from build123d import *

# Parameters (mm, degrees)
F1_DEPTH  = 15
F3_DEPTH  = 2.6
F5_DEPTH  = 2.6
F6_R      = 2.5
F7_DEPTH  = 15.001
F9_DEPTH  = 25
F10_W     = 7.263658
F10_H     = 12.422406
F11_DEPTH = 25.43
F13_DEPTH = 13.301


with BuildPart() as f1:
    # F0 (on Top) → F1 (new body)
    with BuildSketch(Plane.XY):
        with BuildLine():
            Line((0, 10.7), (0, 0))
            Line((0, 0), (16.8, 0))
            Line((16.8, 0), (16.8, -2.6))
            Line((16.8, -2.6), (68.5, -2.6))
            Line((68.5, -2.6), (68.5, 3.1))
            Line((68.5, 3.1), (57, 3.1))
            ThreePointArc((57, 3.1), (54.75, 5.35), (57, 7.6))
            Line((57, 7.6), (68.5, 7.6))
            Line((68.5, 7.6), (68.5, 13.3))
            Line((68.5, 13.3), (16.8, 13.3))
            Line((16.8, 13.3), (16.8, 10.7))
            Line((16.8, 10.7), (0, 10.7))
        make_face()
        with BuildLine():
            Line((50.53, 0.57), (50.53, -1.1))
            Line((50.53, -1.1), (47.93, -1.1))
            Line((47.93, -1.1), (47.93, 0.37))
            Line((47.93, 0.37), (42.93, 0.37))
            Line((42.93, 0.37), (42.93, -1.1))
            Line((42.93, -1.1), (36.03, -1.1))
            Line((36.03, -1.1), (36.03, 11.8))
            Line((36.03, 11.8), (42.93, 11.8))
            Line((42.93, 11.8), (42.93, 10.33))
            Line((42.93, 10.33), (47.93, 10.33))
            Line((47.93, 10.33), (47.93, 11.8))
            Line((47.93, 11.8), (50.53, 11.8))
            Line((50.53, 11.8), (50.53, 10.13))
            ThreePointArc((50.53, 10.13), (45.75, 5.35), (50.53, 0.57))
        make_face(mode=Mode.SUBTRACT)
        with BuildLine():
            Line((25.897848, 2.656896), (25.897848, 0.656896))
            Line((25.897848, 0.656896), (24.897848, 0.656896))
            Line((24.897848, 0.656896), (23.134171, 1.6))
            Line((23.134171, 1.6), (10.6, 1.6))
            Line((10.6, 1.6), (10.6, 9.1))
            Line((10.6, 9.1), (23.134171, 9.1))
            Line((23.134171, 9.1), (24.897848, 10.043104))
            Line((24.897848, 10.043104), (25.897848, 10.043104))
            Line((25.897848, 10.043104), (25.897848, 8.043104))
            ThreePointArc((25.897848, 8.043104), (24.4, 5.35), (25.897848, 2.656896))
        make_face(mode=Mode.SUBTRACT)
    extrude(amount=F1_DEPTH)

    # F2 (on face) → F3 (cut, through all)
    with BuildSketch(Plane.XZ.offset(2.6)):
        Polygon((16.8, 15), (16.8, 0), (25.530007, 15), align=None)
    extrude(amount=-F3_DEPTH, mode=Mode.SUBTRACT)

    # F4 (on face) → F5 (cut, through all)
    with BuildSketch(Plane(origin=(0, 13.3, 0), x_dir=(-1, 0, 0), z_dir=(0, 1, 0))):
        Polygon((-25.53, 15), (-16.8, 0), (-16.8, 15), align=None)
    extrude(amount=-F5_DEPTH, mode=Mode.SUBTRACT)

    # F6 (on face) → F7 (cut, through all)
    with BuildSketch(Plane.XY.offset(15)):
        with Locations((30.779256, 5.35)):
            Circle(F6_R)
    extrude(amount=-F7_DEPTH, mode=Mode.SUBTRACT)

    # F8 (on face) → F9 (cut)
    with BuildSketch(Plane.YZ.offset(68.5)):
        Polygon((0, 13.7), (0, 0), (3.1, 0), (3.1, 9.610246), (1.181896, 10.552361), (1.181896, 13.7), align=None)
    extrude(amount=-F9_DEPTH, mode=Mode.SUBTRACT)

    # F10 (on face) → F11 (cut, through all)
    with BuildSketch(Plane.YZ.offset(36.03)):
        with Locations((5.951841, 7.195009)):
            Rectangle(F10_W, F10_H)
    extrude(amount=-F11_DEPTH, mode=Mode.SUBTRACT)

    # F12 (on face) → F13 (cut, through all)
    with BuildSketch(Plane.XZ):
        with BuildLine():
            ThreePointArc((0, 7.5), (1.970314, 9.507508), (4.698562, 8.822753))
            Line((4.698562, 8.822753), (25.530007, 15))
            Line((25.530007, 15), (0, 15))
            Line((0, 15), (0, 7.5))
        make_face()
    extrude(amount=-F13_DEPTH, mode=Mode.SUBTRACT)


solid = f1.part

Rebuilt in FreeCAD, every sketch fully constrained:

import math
import FreeCAD as App
import Part
import Sketcher


def add_polygon(sketch, points):
    """Adds a closed chain of lines whose ends are joined by coincident constraints."""
    first, n = sketch.GeometryCount, len(points)
    for a, b in zip(points, points[1:] + points[:1]):
        sketch.addGeometry(Part.LineSegment(App.Vector(*a, 0), App.Vector(*b, 0)), False)
    for i in range(n):
        sketch.addConstraint(Sketcher.Constraint("Coincident", first + i, 2, first + (i + 1) % n, 1))

doc = App.newDocument("Part")
body = doc.addObject("PartDesign::Body", "Body")

sketch1 = body.newObject("Sketcher::SketchObject", "Sketch")
sketch1.AttachmentSupport = (doc.getObject("XY_Plane"), [""])
sketch1.MapMode = "FlatFace"
sketch1.addGeometry([
    Part.LineSegment(App.Vector(0, 10.7, 0), App.Vector(0, 0, 0)),
    Part.LineSegment(App.Vector(0, 0, 0), App.Vector(16.8, 0, 0)),
    Part.LineSegment(App.Vector(16.8, 0, 0), App.Vector(16.8, -2.6, 0)),
    Part.LineSegment(App.Vector(16.8, -2.6, 0), App.Vector(68.5, -2.6, 0)),
    Part.LineSegment(App.Vector(68.5, -2.6, 0), App.Vector(68.5, 3.1, 0)),
    Part.LineSegment(App.Vector(68.5, 3.1, 0), App.Vector(57, 3.1, 0)),
    Part.ArcOfCircle(Part.Circle(App.Vector(57, 5.35, 0), App.Vector(0, 0, 1), 2.25), math.radians(90), math.radians(270)),
    Part.LineSegment(App.Vector(57, 7.6, 0), App.Vector(68.5, 7.6, 0)),
    Part.LineSegment(App.Vector(68.5, 7.6, 0), App.Vector(68.5, 13.3, 0)),
    Part.LineSegment(App.Vector(68.5, 13.3, 0), App.Vector(16.8, 13.3, 0)),
    Part.LineSegment(App.Vector(16.8, 13.3, 0), App.Vector(16.8, 10.7, 0)),
    Part.LineSegment(App.Vector(16.8, 10.7, 0), App.Vector(0, 10.7, 0)),
    Part.ArcOfCircle(Part.Circle(App.Vector(27.57, 5.35, 0), App.Vector(0, 0, 1), 3.17), math.radians(121.836211), math.radians(238.163789)),
    Part.LineSegment(App.Vector(25.897848, 2.656896, 0), App.Vector(25.897848, 0.656896, 0)),
    Part.LineSegment(App.Vector(25.897848, 0.656896, 0), App.Vector(24.897848, 0.656896, 0)),
    Part.LineSegment(App.Vector(24.897848, 0.656896, 0), App.Vector(23.134171, 1.6, 0)),
    Part.LineSegment(App.Vector(23.134171, 1.6, 0), App.Vector(10.6, 1.6, 0)),
    Part.LineSegment(App.Vector(10.6, 1.6, 0), App.Vector(10.6, 9.1, 0)),
    Part.LineSegment(App.Vector(10.6, 9.1, 0), App.Vector(23.134171, 9.1, 0)),
    Part.LineSegment(App.Vector(23.134171, 9.1, 0), App.Vector(24.897848, 10.043104, 0)),
    Part.LineSegment(App.Vector(24.897848, 10.043104, 0), App.Vector(25.897848, 10.043104, 0)),
    Part.LineSegment(App.Vector(25.897848, 10.043104, 0), App.Vector(25.897848, 8.043104, 0)),
    Part.ArcOfCircle(Part.Circle(App.Vector(50.53, 5.35, 0), App.Vector(0, 0, 1), 4.78), math.radians(90), math.radians(270)),
    Part.LineSegment(App.Vector(50.53, 0.57, 0), App.Vector(50.53, -1.1, 0)),
    Part.LineSegment(App.Vector(50.53, -1.1, 0), App.Vector(47.93, -1.1, 0)),
    Part.LineSegment(App.Vector(47.93, -1.1, 0), App.Vector(47.93, 0.37, 0)),
    Part.LineSegment(App.Vector(47.93, 0.37, 0), App.Vector(42.93, 0.37, 0)),
    Part.LineSegment(App.Vector(42.93, 0.37, 0), App.Vector(42.93, -1.1, 0)),
    Part.LineSegment(App.Vector(42.93, -1.1, 0), App.Vector(36.03, -1.1, 0)),
    Part.LineSegment(App.Vector(36.03, -1.1, 0), App.Vector(36.03, 11.8, 0)),
    Part.LineSegment(App.Vector(36.03, 11.8, 0), App.Vector(42.93, 11.8, 0)),
    Part.LineSegment(App.Vector(42.93, 11.8, 0), App.Vector(42.93, 10.33, 0)),
    Part.LineSegment(App.Vector(42.93, 10.33, 0), App.Vector(47.93, 10.33, 0)),
    Part.LineSegment(App.Vector(47.93, 10.33, 0), App.Vector(47.93, 11.8, 0)),
    Part.LineSegment(App.Vector(47.93, 11.8, 0), App.Vector(50.53, 11.8, 0)),
    Part.LineSegment(App.Vector(50.53, 11.8, 0), App.Vector(50.53, 10.13, 0)),
], False)
sketch1.addConstraint([
    Sketcher.Constraint("Coincident", 0, 2, 1, 1),
    Sketcher.Constraint("Coincident", 1, 2, 2, 1),
    Sketcher.Constraint("Coincident", 2, 2, 3, 1),
    Sketcher.Constraint("Coincident", 3, 2, 4, 1),
    Sketcher.Constraint("Coincident", 4, 2, 5, 1),
    Sketcher.Constraint("Tangent", 5, 2, 6, 2),
    Sketcher.Constraint("Tangent", 6, 1, 7, 1),
    Sketcher.Constraint("Coincident", 7, 2, 8, 1),
    Sketcher.Constraint("Coincident", 8, 2, 9, 1),
    Sketcher.Constraint("Coincident", 9, 2, 10, 1),
    Sketcher.Constraint("Coincident", 10, 2, 11, 1),
    Sketcher.Constraint("Coincident", 11, 2, 0, 1),
    Sketcher.Constraint("Coincident", 12, 2, 13, 1),
    Sketcher.Constraint("Coincident", 13, 2, 14, 1),
    Sketcher.Constraint("Coincident", 14, 2, 15, 1),
    Sketcher.Constraint("Coincident", 15, 2, 16, 1),
    Sketcher.Constraint("Coincident", 16, 2, 17, 1),
    Sketcher.Constraint("Coincident", 17, 2, 18, 1),
    Sketcher.Constraint("Coincident", 18, 2, 19, 1),
    Sketcher.Constraint("Coincident", 19, 2, 20, 1),
    Sketcher.Constraint("Coincident", 20, 2, 21, 1),
    Sketcher.Constraint("Coincident", 21, 2, 12, 1),
    Sketcher.Constraint("Coincident", 22, 2, 23, 1),
    Sketcher.Constraint("Coincident", 23, 2, 24, 1),
    Sketcher.Constraint("Coincident", 24, 2, 25, 1),
    Sketcher.Constraint("Coincident", 25, 2, 26, 1),
    Sketcher.Constraint("Coincident", 26, 2, 27, 1),
    Sketcher.Constraint("Coincident", 27, 2, 28, 1),
    Sketcher.Constraint("Coincident", 28, 2, 29, 1),
    Sketcher.Constraint("Coincident", 29, 2, 30, 1),
    Sketcher.Constraint("Coincident", 30, 2, 31, 1),
    Sketcher.Constraint("Coincident", 31, 2, 32, 1),
    Sketcher.Constraint("Coincident", 32, 2, 33, 1),
    Sketcher.Constraint("Coincident", 33, 2, 34, 1),
    Sketcher.Constraint("Coincident", 34, 2, 35, 1),
    Sketcher.Constraint("Coincident", 35, 2, 22, 1),
    Sketcher.Constraint("Vertical", 0),
    Sketcher.Constraint("Horizontal", 1),
    Sketcher.Constraint("Vertical", 2),
    Sketcher.Constraint("Horizontal", 3),
    Sketcher.Constraint("Vertical", 4),
    Sketcher.Constraint("Horizontal", 5),
    Sketcher.Constraint("Horizontal", 7),
    Sketcher.Constraint("Vertical", 8),
    Sketcher.Constraint("Horizontal", 9),
    Sketcher.Constraint("Vertical", 10),
    Sketcher.Constraint("Horizontal", 11),
    Sketcher.Constraint("Vertical", 13),
    Sketcher.Constraint("Horizontal", 14),
    Sketcher.Constraint("Horizontal", 16),
    Sketcher.Constraint("Vertical", 17),
    Sketcher.Constraint("Horizontal", 18),
    Sketcher.Constraint("Horizontal", 20),
    Sketcher.Constraint("Vertical", 21),
    Sketcher.Constraint("Vertical", 23),
    Sketcher.Constraint("Horizontal", 24),
    Sketcher.Constraint("Vertical", 25),
    Sketcher.Constraint("Horizontal", 26),
    Sketcher.Constraint("Vertical", 27),
    Sketcher.Constraint("Horizontal", 28),
    Sketcher.Constraint("Vertical", 29),
    Sketcher.Constraint("Horizontal", 30),
    Sketcher.Constraint("Vertical", 31),
    Sketcher.Constraint("Horizontal", 32),
    Sketcher.Constraint("Vertical", 33),
    Sketcher.Constraint("Horizontal", 34),
    Sketcher.Constraint("Vertical", 35),
    Sketcher.Constraint("Coincident", 0, 2, -1, 1),
    Sketcher.Constraint("Horizontal", 6, 3, 12, 3),
    Sketcher.Constraint("Horizontal", 12, 3, 22, 3),
    Sketcher.Constraint("Horizontal", 24, 2, 27, 2),
    Sketcher.Constraint("Horizontal", 30, 2, 33, 2),
    Sketcher.Constraint("Vertical", 4, 2, 7, 2),
    Sketcher.Constraint("Vertical", 2, 2, 9, 2),
    Sketcher.Constraint("Vertical", 15, 2, 18, 2),
    Sketcher.Constraint("Vertical", 14, 2, 19, 2),
    Sketcher.Constraint("Vertical", 13, 2, 20, 2),
    Sketcher.Constraint("Vertical", 27, 2, 30, 2),
    Sketcher.Constraint("Vertical", 25, 2, 32, 2),
    Sketcher.Constraint("Vertical", 23, 2, 34, 2),
    Sketcher.Constraint("Equal", 34, 2),
    Sketcher.Constraint("Equal", 4, 8),
    Sketcher.Constraint("Equal", 2, 10),
    Sketcher.Constraint("Equal", 13, 21),
    Sketcher.Constraint("Equal", 27, 31),
    Sketcher.Constraint("Equal", 23, 35),
    Sketcher.Constraint("Equal", 15, 19),
    Sketcher.Constraint("DistanceX", 14, 2, 14, 1, 1.0),
    Sketcher.Constraint("DistanceX", 26, 2, 26, 1, 5.0),
    Sketcher.Constraint("DistanceY", 13, 2, 13, 1, 2.0),
    Sketcher.Constraint("Radius", 6, 2.25),
    Sketcher.Constraint("Radius", 12, 3.17),
    Sketcher.Constraint("Radius", 22, 4.78),
    Sketcher.Constraint("Distance", 15, 2.0),
    Sketcher.Constraint("DistanceX", 1, 1, 1, 2, 16.8),
    Sketcher.Constraint("DistanceX", 3, 1, 3, 2, 51.7),
    Sketcher.Constraint("DistanceX", 5, 2, 5, 1, 11.5),
    Sketcher.Constraint("DistanceX", 24, 2, 24, 1, 2.6),
    Sketcher.Constraint("DistanceX", 28, 2, 28, 1, 6.9),
    Sketcher.Constraint("DistanceY", 0, 2, 0, 1, 10.7),
    Sketcher.Constraint("DistanceY", 17, 1, 17, 2, 7.5),
    Sketcher.Constraint("DistanceY", 29, 1, 29, 2, 12.9),
    Sketcher.Constraint("DistanceY", 25, 1, 25, 2, 1.47),
    Sketcher.Constraint("DistanceX", -1, 1, 16, 2, 10.6),
    Sketcher.Constraint("DistanceX", 24, 2, 22, 3, 2.6),
    Sketcher.Constraint("DistanceX", -1, 1, 12, 3, 27.57),
    Sketcher.Constraint("DistanceX", -1, 1, 22, 3, 50.53),
    Sketcher.Constraint("DistanceX", 16, 2, 16, 1, 12.534171),
])
pad1 = body.newObject("PartDesign::Pad", "Pad")
pad1.Profile = sketch1
pad1.Length = 15

sketch2 = body.newObject("Sketcher::SketchObject", "Sketch001")
sketch2.AttachmentSupport = (doc.getObject("XZ_Plane"), [""])
sketch2.MapMode = "FlatFace"
sketch2.AttachmentOffset = App.Placement(App.Vector(0, 0, 2.6), App.Rotation())
add_polygon(sketch2, [(16.8, 15), (16.8, 0), (25.530007, 15)])
sketch2.addConstraint([
    Sketcher.Constraint("Vertical", 0),
    Sketcher.Constraint("Horizontal", 2),
    Sketcher.Constraint("PointOnObject", 0, 2, -1),
    Sketcher.Constraint("DistanceY", 0, 2, 0, 1, 15.0),
    Sketcher.Constraint("DistanceX", -1, 1, 0, 2, 16.8),
    Sketcher.Constraint("Distance", 1, 17.35549),
])
pocket1 = body.newObject("PartDesign::Pocket", "Pocket")
pocket1.Profile = sketch2
pocket1.Length = 2.6

sketch3 = body.newObject("Sketcher::SketchObject", "Sketch002")
sketch3.AttachmentSupport = (doc.getObject("XZ_Plane"), [""])
sketch3.MapMode = "FlatFace"
sketch3.AttachmentOffset = App.Placement(App.Vector(0, 0, -13.3), App.Rotation())
add_polygon(sketch3, [(25.53, 15), (16.8, 0), (16.8, 15)])
sketch3.addConstraint([
    Sketcher.Constraint("Vertical", 1),
    Sketcher.Constraint("Horizontal", 2),
    Sketcher.Constraint("PointOnObject", 0, 2, -1),
    Sketcher.Constraint("DistanceY", 1, 1, 1, 2, 15.0),
    Sketcher.Constraint("DistanceX", 2, 1, 2, 2, 8.73),
    Sketcher.Constraint("DistanceX", -1, 1, 0, 2, 16.8),
])
pocket2 = body.newObject("PartDesign::Pocket", "Pocket001")
pocket2.Profile = sketch3
pocket2.Length = 2.6
pocket2.Reversed = True

sketch4 = body.newObject("Sketcher::SketchObject", "Sketch003")
sketch4.AttachmentSupport = (doc.getObject("XY_Plane"), [""])
sketch4.MapMode = "FlatFace"
sketch4.AttachmentOffset = App.Placement(App.Vector(0, 0, 15), App.Rotation())
sketch4.addGeometry(Part.Circle(App.Vector(30.779256, 5.35, 0), App.Vector(0, 0, 1), 2.5), False)
sketch4.addConstraint([
    Sketcher.Constraint("Diameter", 0, 5.0),
    Sketcher.Constraint("DistanceY", -1, 1, 0, 3, 5.35),
    Sketcher.Constraint("DistanceX", -1, 1, 0, 3, 30.779256),
])
pocket3 = body.newObject("PartDesign::Pocket", "Pocket002")
pocket3.Profile = sketch4
pocket3.Type = "ThroughAll"

sketch5 = body.newObject("Sketcher::SketchObject", "Sketch004")
sketch5.AttachmentSupport = (doc.getObject("YZ_Plane"), [""])
sketch5.MapMode = "FlatFace"
sketch5.AttachmentOffset = App.Placement(App.Vector(0, 0, 68.5), App.Rotation())
add_polygon(sketch5, [(0, 13.7), (0, 0), (3.1, 0), (3.1, 9.610246), (1.181896, 10.552361), (1.181896, 13.7)])
sketch5.addConstraint([
    Sketcher.Constraint("Vertical", 0),
    Sketcher.Constraint("Horizontal", 1),
    Sketcher.Constraint("Vertical", 2),
    Sketcher.Constraint("Vertical", 4),
    Sketcher.Constraint("Horizontal", 5),
    Sketcher.Constraint("Coincident", 0, 2, -1, 1),
    Sketcher.Constraint("DistanceX", 1, 1, 1, 2, 3.1),
    Sketcher.Constraint("DistanceY", 0, 2, 0, 1, 13.7),
    Sketcher.Constraint("DistanceY", 4, 1, 4, 2, 3.147639),
    Sketcher.Constraint("DistanceX", 5, 2, 5, 1, 1.181896),
    Sketcher.Constraint("DistanceY", 2, 1, 2, 2, 9.610246),
])
pocket4 = body.newObject("PartDesign::Pocket", "Pocket003")
pocket4.Profile = sketch5
pocket4.Length = 25

sketch6 = body.newObject("Sketcher::SketchObject", "Sketch005")
sketch6.AttachmentSupport = (doc.getObject("YZ_Plane"), [""])
sketch6.MapMode = "FlatFace"
sketch6.AttachmentOffset = App.Placement(App.Vector(0, 0, 36.03), App.Rotation())
add_polygon(sketch6, [(2.320012, 13.406212), (2.320012, 0.983806), (9.58367, 0.983806), (9.58367, 13.406212)])
sketch6.addConstraint([
    Sketcher.Constraint("Vertical", 0),
    Sketcher.Constraint("Horizontal", 1),
    Sketcher.Constraint("Vertical", 2),
    Sketcher.Constraint("Horizontal", 3),
    Sketcher.Constraint("DistanceX", 1, 1, 1, 2, 7.263658),
    Sketcher.Constraint("DistanceY", 0, 2, 0, 1, 12.422406),
    Sketcher.Constraint("DistanceX", -1, 1, 1, 2, 9.58367),
    Sketcher.Constraint("DistanceY", -1, 1, 0, 2, 0.983806),
])
pocket5 = body.newObject("PartDesign::Pocket", "Pocket004")
pocket5.Profile = sketch6
pocket5.Length = 25.43

sketch7 = body.newObject("Sketcher::SketchObject", "Sketch006")
sketch7.AttachmentSupport = (doc.getObject("XZ_Plane"), [""])
sketch7.MapMode = "FlatFace"
sketch7.addGeometry([
    Part.ArcOfCircle(Part.Circle(App.Vector(2.736918, 6.784449, 0), App.Vector(0, 0, 1), 2.82891), math.radians(46.097949), math.radians(165.348308)),
    Part.LineSegment(App.Vector(4.698562, 8.822753, 0), App.Vector(25.530007, 15, 0)),
    Part.LineSegment(App.Vector(25.530007, 15, 0), App.Vector(0, 15, 0)),
    Part.LineSegment(App.Vector(0, 15, 0), App.Vector(0, 7.5, 0)),
], False)
sketch7.addConstraint([
    Sketcher.Constraint("Coincident", 0, 1, 1, 1),
    Sketcher.Constraint("Coincident", 1, 2, 2, 1),
    Sketcher.Constraint("Coincident", 2, 2, 3, 1),
    Sketcher.Constraint("Coincident", 3, 2, 0, 2),
    Sketcher.Constraint("Horizontal", 2),
    Sketcher.Constraint("Vertical", 3),
    Sketcher.Constraint("PointOnObject", 2, 2, -2),
    Sketcher.Constraint("DistanceY", 3, 2, 3, 1, 7.5),
    Sketcher.Constraint("DistanceY", -1, 1, 1, 2, 15.0),
    Sketcher.Constraint("Radius", 0, 2.82891),
    Sketcher.Constraint("DistanceX", 2, 2, 2, 1, 25.530007),
    Sketcher.Constraint("DistanceY", -1, 1, 0, 3, 6.784449),
    Sketcher.Constraint("DistanceX", -1, 1, 0, 1, 4.698562),
])
pocket6 = body.newObject("PartDesign::Pocket", "Pocket005")
pocket6.Profile = sketch7
pocket6.Type = "ThroughAll"

doc.recompute()
